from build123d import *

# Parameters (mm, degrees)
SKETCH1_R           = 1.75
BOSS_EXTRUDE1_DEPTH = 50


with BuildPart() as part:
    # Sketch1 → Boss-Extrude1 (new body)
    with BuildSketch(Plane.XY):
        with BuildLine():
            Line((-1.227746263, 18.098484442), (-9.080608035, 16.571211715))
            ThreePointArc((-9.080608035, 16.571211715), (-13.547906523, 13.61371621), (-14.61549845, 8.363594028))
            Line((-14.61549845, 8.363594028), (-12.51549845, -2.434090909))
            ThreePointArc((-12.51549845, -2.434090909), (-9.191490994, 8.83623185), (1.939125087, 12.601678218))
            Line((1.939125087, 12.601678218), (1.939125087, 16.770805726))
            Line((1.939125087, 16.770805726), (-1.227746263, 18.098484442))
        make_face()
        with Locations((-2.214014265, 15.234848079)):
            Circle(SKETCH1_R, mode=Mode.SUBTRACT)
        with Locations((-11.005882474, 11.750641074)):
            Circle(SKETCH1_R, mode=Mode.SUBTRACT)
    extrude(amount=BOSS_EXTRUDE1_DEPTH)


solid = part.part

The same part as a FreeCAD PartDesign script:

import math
import FreeCAD as App
import Part
import Sketcher

doc = App.newDocument("Part")
body = doc.addObject("PartDesign::Body", "Body")

sketch1 = doc.addObject("Sketcher::SketchObject", "Sketch")
body.addObject(sketch1)
sketch1.AttachmentSupport = (doc.XY_Plane, [""])
sketch1.MapMode = "FlatFace"
sketch1.addGeometry([
    Part.LineSegment(App.Vector(-1.227746, 18.098484, 0), App.Vector(-9.080608, 16.571212, 0)),
    Part.ArcOfCircle(Part.Circle(App.Vector(-7.744244, 9.699958, 0), App.Vector(0, 0, 1), 7), math.radians(101.005842), math.radians(191.005842)),
    Part.LineSegment(App.Vector(-14.615498, 8.363594, 0), App.Vector(-12.515498, -2.434091, 0)),
    Part.ArcOfCircle(Part.Circle(App.Vector(0, 0, 0), App.Vector(0, 0, 1), 12.75), math.radians(81.252037), math.radians(191.005842)),
    Part.LineSegment(App.Vector(1.939125, 12.601678, 0), App.Vector(1.939125, 16.770806, 0)),
    Part.LineSegment(App.Vector(1.939125, 16.770806, 0), App.Vector(-1.227746, 18.098484, 0)),
    Part.Circle(App.Vector(-11.005882, 11.750641, 0), App.Vector(0, 0, 1), 1.75),
    Part.Circle(App.Vector(-2.214014, 15.234848, 0), App.Vector(0, 0, 1), 1.75),
], False)
sketch1.addConstraint([
    Sketcher.Constraint("Tangent", 0, 2, 1, 1),
    Sketcher.Constraint("Tangent", 1, 2, 2, 1),
    Sketcher.Constraint("Tangent", 2, 2, 3, 2),
    Sketcher.Constraint("Coincident", 3, 1, 4, 1),
    Sketcher.Constraint("Coincident", 4, 2, 5, 1),
    Sketcher.Constraint("Coincident", 5, 2, 0, 1),
    Sketcher.Constraint("Vertical", 4),
    Sketcher.Constraint("Coincident", 3, 3, -1, 1),
    Sketcher.Constraint("Equal", 6, 7),
    Sketcher.Constraint("Perpendicular", 0, 2),
    Sketcher.Constraint("Radius", 1, 7.0),
    Sketcher.Constraint("Diameter", 6, 3.5),
    Sketcher.Constraint("Radius", 3, 12.75),
    Sketcher.Constraint("Distance", 0, 8.0),
    Sketcher.Constraint("Distance", 2, 11.0),
    Sketcher.Constraint("DistanceX", 1, 2, 2, 2, 2.1),
    Sketcher.Constraint("Distance", 5, 3.43392),
    Sketcher.Constraint("DistanceY", 4, 1, 4, 2, 4.169128),
    Sketcher.Constraint("DistanceY", -1, 1, 6, 3, 11.750641),
    Sketcher.Constraint("DistanceY", -1, 1, 7, 3, 15.234848),
    Sketcher.Constraint("DistanceX", 6, 3, 1, 3, 3.261638),
    Sketcher.Constraint("DistanceX", 1, 3, 7, 3, 5.53023),
])
pad1 = doc.addObject("PartDesign::Pad", "Pad")
body.addObject(pad1)
pad1.Profile = sketch1
pad1.Length = 50

doc.recompute()
